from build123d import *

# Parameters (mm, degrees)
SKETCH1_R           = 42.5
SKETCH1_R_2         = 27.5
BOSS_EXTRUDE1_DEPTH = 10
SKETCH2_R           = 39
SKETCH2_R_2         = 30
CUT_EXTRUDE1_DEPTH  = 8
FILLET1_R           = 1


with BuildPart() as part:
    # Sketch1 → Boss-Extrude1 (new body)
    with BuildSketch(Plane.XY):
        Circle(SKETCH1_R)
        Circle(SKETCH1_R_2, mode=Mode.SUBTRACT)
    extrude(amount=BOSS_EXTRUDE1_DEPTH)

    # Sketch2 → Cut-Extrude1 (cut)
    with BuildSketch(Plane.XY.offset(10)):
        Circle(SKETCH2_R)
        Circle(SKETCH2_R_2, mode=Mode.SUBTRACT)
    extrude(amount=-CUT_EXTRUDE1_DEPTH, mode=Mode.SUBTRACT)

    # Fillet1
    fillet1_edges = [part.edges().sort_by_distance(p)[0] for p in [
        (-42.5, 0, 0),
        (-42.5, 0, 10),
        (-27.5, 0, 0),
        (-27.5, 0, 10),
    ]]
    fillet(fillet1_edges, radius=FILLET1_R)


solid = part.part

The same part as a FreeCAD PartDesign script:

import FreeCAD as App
import Part
import Sketcher
Q = App.Units.Quantity


def edges_at(feature, points):
    """Names of the edges that pass closest to the given points."""
    edges = feature.Shape.Edges
    near = lambda p: min(range(len(edges)), key=lambda i: edges[i].distToShape(Part.Vertex(*p))[0])
    return sorted({f"Edge{near(p) + 1}" for p in points})

doc = App.newDocument("Part")
body = doc.addObject("PartDesign::Body", "Body")

# Sketch on XY plane
sketch1 = doc.addObject("Sketcher::SketchObject", "Sketch")
body.addObject(sketch1)
sketch1.AttachmentSupport = (doc.XY_Plane, [""])
sketch1.MapMode = "FlatFace"
sketch1.addGeometry([
    Part.Circle(App.Vector(0, 0, 0), App.Vector(0, 0, 1), 42),
    Part.Circle(App.Vector(0, 0, 0), App.Vector(0, 0, 1), 28),
], False)
sketch1.addConstraint([
    Sketcher.Constraint("Coincident", 0, 3, -1, 1),
    Sketcher.Constraint("Coincident", 1, 3, -1, 1),
    Sketcher.Constraint("Diameter", 0, Q("85 mm")),
    Sketcher.Constraint("Diameter", 1, Q("55 mm")),
])
pad1 = doc.addObject("PartDesign::Pad", "Pad")
body.addObject(pad1)
pad1.Profile = sketch1
pad1.Length = 10

# Sketch on XY plane
sketch2 = doc.addObject("Sketcher::SketchObject", "Sketch001")
body.addObject(sketch2)
sketch2.AttachmentSupport = (doc.XY_Plane, [""])
sketch2.MapMode = "FlatFace"
sketch2.AttachmentOffset = App.Placement(App.Vector(0, 0, 10), App.Rotation())
sketch2.addGeometry([
    Part.Circle(App.Vector(0, 0, 0), App.Vector(0, 0, 1), 39),
    Part.Circle(App.Vector(0, 0, 0), App.Vector(0, 0, 1), 30),
], False)
sketch2.addConstraint([
    Sketcher.Constraint("Coincident", 0, 3, -1, 1),
    Sketcher.Constraint("Coincident", 1, 3, -1, 1),
    Sketcher.Constraint("Diameter", 0, Q("78 mm")),
    Sketcher.Constraint("Diameter", 1, Q("60 mm")),
])
pocket1 = doc.addObject("PartDesign::Pocket", "Pocket")
body.addObject(pocket1)
pocket1.Profile = sketch2
pocket1.Length = 8
doc.recompute()

fillet = doc.addObject("PartDesign::Fillet", "Fillet")
body.addObject(fillet)
fillet.Base = (pocket1, edges_at(pocket1, [
    (-42.5, 0, 0),
    (-42.5, 0, 10),
    (-27.5, 0, 0),
    (-27.5, 0, 10),
]))
fillet.Radius = 1

doc.recompute()
